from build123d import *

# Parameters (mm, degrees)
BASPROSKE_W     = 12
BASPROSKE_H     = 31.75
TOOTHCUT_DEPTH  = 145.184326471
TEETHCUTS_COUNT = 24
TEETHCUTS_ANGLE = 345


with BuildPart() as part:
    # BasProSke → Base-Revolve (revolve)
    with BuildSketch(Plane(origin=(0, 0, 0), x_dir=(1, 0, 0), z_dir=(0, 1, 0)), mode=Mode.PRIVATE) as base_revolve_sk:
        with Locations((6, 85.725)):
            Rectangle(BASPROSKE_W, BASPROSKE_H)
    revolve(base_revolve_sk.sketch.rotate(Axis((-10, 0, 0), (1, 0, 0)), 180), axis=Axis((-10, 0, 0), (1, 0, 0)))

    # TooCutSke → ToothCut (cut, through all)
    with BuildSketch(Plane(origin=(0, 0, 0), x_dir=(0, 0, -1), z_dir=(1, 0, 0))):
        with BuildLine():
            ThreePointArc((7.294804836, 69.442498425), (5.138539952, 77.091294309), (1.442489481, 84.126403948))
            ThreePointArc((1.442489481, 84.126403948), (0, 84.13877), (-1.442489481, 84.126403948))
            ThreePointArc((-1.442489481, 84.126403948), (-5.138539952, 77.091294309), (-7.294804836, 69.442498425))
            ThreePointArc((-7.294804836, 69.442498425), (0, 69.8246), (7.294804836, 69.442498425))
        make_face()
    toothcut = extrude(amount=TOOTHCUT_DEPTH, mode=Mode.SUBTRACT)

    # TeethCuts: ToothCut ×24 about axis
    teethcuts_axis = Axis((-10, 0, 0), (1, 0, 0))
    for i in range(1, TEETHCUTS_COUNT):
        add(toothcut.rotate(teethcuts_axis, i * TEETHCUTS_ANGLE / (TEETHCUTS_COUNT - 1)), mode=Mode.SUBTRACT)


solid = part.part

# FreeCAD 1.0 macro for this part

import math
import FreeCAD as App
import Part
import Sketcher

V = App.Vector
Q = App.Units.Quantity

doc = App.newDocument("Part")
body = doc.addObject("PartDesign::Body", "Body")

# Sketch on XZ plane
sketch1 = body.newObject("Sketcher::SketchObject", "Sketch")
sketch1.AttachmentSupport = (doc.getObject("XZ_Plane"), [""])
sketch1.MapMode = "FlatFace"
sketch1.addGeometry(Part.LineSegment(V(0, -102, 0), V(0, -70, 0)), False)
sketch1.addGeometry(Part.LineSegment(V(0, -70, 0), V(12, -70, 0)), False)
sketch1.addGeometry(Part.LineSegment(V(12, -70, 0), V(12, -102, 0)), False)
sketch1.addGeometry(Part.LineSegment(V(12, -102, 0), V(0, -102, 0)), False)
sketch1.addConstraint(Sketcher.Constraint("Coincident", 0, 2, 1, 1))
sketch1.addConstraint(Sketcher.Constraint("Coincident", 1, 2, 2, 1))
sketch1.addConstraint(Sketcher.Constraint("Coincident", 2, 2, 3, 1))
sketch1.addConstraint(Sketcher.Constraint("Coincident", 3, 2, 0, 1))
sketch1.addConstraint(Sketcher.Constraint("Vertical", 0))
sketch1.addConstraint(Sketcher.Constraint("Horizontal", 1))
sketch1.addConstraint(Sketcher.Constraint("Vertical", 2))
sketch1.addConstraint(Sketcher.Constraint("Horizontal", 3))
sketch1.addConstraint(Sketcher.Constraint("PointOnObject", 0, 2, -2))
sketch1.addConstraint(Sketcher.Constraint("DistanceY", 2, 2, -1, 1, Q("4 in")))
sketch1.addConstraint(Sketcher.Constraint("DistanceY", 0, 1, 0, 2, Q("1.25 in")))
sketch1.addConstraint(Sketcher.Constraint("DistanceX", 1, 1, 1, 2, 12.0))
revolution = body.newObject("PartDesign::Revolution", "Revolution")
revolution.Profile = sketch1
revolution.ReferenceAxis = (sketch1, ["H_Axis"])
revolution.Angle = 360

# Sketch on YZ plane
sketch2 = body.newObject("Sketcher::SketchObject", "Sketch001")
sketch2.AttachmentSupport = (doc.getObject("YZ_Plane"), [""])
sketch2.MapMode = "FlatFace"
sketch2.addGeometry(Part.ArcOfCircle(Part.Circle(V(63, 30.3, 0), V(0, 0, 1), 38.1), math.radians(-80), math.radians(-56)), False)
sketch2.addGeometry(Part.ArcOfCircle(Part.Circle(V(0, 0, 0), V(0, 0, 1), 84.1), math.radians(-0.98), math.radians(0.98)), False)
sketch2.addGeometry(Part.ArcOfCircle(Part.Circle(V(63, -30.3, 0), V(0, 0, 1), 38.1), math.radians(56), math.radians(80)), False)
sketch2.addGeometry(Part.ArcOfCircle(Part.Circle(V(0, 0, 0), V(0, 0, 1), 69.8), math.radians(-6), math.radians(6)), False)
sketch2.addConstraint(Sketcher.Constraint("Coincident", 0, 2, 1, 1))
sketch2.addConstraint(Sketcher.Constraint("Coincident", 1, 2, 2, 1))
sketch2.addConstraint(Sketcher.Constraint("Coincident", 2, 2, 3, 2))
sketch2.addConstraint(Sketcher.Constraint("Coincident", 3, 1, 0, 1))
sketch2.addConstraint(Sketcher.Constraint("Coincident", 1, 3, -1, 1))
sketch2.addConstraint(Sketcher.Constraint("Coincident", 3, 3, -1, 1))
sketch2.addConstraint(Sketcher.Constraint("Equal", 0, 2))
sketch2.addConstraint(Sketcher.Constraint("Symmetric", 0, 3, 2, 3, -1))
sketch2.addConstraint(Sketcher.Constraint("Radius", 0, Q("1.5 in")))
sketch2.addConstraint(Sketcher.Constraint("Radius", 3, Q("2.749 in")))
sketch2.addConstraint(Sketcher.Constraint("Radius", 1, 84.13877))
sketch2.addConstraint(Sketcher.Constraint("DistanceX", -1, 1, 2, 2, 69.442498))
sketch2.addConstraint(Sketcher.Constraint("DistanceX", -1, 1, 0, 3, 62.985468))
pocket1 = body.newObject("PartDesign::Pocket", "Pocket")
pocket1.Profile = sketch2
pocket1.Type = "ThroughAll"
pocket1.Reversed = True
doc.recompute()

polarpattern = body.newObject("PartDesign::PolarPattern", "PolarPattern")
polarpattern.Originals = [pocket1]
polarpattern.Axis = (doc.getObject("X_Axis"), [""])
polarpattern.Angle = 360
polarpattern.Occurrences = 24
body.Tip = polarpattern

doc.recompute()
